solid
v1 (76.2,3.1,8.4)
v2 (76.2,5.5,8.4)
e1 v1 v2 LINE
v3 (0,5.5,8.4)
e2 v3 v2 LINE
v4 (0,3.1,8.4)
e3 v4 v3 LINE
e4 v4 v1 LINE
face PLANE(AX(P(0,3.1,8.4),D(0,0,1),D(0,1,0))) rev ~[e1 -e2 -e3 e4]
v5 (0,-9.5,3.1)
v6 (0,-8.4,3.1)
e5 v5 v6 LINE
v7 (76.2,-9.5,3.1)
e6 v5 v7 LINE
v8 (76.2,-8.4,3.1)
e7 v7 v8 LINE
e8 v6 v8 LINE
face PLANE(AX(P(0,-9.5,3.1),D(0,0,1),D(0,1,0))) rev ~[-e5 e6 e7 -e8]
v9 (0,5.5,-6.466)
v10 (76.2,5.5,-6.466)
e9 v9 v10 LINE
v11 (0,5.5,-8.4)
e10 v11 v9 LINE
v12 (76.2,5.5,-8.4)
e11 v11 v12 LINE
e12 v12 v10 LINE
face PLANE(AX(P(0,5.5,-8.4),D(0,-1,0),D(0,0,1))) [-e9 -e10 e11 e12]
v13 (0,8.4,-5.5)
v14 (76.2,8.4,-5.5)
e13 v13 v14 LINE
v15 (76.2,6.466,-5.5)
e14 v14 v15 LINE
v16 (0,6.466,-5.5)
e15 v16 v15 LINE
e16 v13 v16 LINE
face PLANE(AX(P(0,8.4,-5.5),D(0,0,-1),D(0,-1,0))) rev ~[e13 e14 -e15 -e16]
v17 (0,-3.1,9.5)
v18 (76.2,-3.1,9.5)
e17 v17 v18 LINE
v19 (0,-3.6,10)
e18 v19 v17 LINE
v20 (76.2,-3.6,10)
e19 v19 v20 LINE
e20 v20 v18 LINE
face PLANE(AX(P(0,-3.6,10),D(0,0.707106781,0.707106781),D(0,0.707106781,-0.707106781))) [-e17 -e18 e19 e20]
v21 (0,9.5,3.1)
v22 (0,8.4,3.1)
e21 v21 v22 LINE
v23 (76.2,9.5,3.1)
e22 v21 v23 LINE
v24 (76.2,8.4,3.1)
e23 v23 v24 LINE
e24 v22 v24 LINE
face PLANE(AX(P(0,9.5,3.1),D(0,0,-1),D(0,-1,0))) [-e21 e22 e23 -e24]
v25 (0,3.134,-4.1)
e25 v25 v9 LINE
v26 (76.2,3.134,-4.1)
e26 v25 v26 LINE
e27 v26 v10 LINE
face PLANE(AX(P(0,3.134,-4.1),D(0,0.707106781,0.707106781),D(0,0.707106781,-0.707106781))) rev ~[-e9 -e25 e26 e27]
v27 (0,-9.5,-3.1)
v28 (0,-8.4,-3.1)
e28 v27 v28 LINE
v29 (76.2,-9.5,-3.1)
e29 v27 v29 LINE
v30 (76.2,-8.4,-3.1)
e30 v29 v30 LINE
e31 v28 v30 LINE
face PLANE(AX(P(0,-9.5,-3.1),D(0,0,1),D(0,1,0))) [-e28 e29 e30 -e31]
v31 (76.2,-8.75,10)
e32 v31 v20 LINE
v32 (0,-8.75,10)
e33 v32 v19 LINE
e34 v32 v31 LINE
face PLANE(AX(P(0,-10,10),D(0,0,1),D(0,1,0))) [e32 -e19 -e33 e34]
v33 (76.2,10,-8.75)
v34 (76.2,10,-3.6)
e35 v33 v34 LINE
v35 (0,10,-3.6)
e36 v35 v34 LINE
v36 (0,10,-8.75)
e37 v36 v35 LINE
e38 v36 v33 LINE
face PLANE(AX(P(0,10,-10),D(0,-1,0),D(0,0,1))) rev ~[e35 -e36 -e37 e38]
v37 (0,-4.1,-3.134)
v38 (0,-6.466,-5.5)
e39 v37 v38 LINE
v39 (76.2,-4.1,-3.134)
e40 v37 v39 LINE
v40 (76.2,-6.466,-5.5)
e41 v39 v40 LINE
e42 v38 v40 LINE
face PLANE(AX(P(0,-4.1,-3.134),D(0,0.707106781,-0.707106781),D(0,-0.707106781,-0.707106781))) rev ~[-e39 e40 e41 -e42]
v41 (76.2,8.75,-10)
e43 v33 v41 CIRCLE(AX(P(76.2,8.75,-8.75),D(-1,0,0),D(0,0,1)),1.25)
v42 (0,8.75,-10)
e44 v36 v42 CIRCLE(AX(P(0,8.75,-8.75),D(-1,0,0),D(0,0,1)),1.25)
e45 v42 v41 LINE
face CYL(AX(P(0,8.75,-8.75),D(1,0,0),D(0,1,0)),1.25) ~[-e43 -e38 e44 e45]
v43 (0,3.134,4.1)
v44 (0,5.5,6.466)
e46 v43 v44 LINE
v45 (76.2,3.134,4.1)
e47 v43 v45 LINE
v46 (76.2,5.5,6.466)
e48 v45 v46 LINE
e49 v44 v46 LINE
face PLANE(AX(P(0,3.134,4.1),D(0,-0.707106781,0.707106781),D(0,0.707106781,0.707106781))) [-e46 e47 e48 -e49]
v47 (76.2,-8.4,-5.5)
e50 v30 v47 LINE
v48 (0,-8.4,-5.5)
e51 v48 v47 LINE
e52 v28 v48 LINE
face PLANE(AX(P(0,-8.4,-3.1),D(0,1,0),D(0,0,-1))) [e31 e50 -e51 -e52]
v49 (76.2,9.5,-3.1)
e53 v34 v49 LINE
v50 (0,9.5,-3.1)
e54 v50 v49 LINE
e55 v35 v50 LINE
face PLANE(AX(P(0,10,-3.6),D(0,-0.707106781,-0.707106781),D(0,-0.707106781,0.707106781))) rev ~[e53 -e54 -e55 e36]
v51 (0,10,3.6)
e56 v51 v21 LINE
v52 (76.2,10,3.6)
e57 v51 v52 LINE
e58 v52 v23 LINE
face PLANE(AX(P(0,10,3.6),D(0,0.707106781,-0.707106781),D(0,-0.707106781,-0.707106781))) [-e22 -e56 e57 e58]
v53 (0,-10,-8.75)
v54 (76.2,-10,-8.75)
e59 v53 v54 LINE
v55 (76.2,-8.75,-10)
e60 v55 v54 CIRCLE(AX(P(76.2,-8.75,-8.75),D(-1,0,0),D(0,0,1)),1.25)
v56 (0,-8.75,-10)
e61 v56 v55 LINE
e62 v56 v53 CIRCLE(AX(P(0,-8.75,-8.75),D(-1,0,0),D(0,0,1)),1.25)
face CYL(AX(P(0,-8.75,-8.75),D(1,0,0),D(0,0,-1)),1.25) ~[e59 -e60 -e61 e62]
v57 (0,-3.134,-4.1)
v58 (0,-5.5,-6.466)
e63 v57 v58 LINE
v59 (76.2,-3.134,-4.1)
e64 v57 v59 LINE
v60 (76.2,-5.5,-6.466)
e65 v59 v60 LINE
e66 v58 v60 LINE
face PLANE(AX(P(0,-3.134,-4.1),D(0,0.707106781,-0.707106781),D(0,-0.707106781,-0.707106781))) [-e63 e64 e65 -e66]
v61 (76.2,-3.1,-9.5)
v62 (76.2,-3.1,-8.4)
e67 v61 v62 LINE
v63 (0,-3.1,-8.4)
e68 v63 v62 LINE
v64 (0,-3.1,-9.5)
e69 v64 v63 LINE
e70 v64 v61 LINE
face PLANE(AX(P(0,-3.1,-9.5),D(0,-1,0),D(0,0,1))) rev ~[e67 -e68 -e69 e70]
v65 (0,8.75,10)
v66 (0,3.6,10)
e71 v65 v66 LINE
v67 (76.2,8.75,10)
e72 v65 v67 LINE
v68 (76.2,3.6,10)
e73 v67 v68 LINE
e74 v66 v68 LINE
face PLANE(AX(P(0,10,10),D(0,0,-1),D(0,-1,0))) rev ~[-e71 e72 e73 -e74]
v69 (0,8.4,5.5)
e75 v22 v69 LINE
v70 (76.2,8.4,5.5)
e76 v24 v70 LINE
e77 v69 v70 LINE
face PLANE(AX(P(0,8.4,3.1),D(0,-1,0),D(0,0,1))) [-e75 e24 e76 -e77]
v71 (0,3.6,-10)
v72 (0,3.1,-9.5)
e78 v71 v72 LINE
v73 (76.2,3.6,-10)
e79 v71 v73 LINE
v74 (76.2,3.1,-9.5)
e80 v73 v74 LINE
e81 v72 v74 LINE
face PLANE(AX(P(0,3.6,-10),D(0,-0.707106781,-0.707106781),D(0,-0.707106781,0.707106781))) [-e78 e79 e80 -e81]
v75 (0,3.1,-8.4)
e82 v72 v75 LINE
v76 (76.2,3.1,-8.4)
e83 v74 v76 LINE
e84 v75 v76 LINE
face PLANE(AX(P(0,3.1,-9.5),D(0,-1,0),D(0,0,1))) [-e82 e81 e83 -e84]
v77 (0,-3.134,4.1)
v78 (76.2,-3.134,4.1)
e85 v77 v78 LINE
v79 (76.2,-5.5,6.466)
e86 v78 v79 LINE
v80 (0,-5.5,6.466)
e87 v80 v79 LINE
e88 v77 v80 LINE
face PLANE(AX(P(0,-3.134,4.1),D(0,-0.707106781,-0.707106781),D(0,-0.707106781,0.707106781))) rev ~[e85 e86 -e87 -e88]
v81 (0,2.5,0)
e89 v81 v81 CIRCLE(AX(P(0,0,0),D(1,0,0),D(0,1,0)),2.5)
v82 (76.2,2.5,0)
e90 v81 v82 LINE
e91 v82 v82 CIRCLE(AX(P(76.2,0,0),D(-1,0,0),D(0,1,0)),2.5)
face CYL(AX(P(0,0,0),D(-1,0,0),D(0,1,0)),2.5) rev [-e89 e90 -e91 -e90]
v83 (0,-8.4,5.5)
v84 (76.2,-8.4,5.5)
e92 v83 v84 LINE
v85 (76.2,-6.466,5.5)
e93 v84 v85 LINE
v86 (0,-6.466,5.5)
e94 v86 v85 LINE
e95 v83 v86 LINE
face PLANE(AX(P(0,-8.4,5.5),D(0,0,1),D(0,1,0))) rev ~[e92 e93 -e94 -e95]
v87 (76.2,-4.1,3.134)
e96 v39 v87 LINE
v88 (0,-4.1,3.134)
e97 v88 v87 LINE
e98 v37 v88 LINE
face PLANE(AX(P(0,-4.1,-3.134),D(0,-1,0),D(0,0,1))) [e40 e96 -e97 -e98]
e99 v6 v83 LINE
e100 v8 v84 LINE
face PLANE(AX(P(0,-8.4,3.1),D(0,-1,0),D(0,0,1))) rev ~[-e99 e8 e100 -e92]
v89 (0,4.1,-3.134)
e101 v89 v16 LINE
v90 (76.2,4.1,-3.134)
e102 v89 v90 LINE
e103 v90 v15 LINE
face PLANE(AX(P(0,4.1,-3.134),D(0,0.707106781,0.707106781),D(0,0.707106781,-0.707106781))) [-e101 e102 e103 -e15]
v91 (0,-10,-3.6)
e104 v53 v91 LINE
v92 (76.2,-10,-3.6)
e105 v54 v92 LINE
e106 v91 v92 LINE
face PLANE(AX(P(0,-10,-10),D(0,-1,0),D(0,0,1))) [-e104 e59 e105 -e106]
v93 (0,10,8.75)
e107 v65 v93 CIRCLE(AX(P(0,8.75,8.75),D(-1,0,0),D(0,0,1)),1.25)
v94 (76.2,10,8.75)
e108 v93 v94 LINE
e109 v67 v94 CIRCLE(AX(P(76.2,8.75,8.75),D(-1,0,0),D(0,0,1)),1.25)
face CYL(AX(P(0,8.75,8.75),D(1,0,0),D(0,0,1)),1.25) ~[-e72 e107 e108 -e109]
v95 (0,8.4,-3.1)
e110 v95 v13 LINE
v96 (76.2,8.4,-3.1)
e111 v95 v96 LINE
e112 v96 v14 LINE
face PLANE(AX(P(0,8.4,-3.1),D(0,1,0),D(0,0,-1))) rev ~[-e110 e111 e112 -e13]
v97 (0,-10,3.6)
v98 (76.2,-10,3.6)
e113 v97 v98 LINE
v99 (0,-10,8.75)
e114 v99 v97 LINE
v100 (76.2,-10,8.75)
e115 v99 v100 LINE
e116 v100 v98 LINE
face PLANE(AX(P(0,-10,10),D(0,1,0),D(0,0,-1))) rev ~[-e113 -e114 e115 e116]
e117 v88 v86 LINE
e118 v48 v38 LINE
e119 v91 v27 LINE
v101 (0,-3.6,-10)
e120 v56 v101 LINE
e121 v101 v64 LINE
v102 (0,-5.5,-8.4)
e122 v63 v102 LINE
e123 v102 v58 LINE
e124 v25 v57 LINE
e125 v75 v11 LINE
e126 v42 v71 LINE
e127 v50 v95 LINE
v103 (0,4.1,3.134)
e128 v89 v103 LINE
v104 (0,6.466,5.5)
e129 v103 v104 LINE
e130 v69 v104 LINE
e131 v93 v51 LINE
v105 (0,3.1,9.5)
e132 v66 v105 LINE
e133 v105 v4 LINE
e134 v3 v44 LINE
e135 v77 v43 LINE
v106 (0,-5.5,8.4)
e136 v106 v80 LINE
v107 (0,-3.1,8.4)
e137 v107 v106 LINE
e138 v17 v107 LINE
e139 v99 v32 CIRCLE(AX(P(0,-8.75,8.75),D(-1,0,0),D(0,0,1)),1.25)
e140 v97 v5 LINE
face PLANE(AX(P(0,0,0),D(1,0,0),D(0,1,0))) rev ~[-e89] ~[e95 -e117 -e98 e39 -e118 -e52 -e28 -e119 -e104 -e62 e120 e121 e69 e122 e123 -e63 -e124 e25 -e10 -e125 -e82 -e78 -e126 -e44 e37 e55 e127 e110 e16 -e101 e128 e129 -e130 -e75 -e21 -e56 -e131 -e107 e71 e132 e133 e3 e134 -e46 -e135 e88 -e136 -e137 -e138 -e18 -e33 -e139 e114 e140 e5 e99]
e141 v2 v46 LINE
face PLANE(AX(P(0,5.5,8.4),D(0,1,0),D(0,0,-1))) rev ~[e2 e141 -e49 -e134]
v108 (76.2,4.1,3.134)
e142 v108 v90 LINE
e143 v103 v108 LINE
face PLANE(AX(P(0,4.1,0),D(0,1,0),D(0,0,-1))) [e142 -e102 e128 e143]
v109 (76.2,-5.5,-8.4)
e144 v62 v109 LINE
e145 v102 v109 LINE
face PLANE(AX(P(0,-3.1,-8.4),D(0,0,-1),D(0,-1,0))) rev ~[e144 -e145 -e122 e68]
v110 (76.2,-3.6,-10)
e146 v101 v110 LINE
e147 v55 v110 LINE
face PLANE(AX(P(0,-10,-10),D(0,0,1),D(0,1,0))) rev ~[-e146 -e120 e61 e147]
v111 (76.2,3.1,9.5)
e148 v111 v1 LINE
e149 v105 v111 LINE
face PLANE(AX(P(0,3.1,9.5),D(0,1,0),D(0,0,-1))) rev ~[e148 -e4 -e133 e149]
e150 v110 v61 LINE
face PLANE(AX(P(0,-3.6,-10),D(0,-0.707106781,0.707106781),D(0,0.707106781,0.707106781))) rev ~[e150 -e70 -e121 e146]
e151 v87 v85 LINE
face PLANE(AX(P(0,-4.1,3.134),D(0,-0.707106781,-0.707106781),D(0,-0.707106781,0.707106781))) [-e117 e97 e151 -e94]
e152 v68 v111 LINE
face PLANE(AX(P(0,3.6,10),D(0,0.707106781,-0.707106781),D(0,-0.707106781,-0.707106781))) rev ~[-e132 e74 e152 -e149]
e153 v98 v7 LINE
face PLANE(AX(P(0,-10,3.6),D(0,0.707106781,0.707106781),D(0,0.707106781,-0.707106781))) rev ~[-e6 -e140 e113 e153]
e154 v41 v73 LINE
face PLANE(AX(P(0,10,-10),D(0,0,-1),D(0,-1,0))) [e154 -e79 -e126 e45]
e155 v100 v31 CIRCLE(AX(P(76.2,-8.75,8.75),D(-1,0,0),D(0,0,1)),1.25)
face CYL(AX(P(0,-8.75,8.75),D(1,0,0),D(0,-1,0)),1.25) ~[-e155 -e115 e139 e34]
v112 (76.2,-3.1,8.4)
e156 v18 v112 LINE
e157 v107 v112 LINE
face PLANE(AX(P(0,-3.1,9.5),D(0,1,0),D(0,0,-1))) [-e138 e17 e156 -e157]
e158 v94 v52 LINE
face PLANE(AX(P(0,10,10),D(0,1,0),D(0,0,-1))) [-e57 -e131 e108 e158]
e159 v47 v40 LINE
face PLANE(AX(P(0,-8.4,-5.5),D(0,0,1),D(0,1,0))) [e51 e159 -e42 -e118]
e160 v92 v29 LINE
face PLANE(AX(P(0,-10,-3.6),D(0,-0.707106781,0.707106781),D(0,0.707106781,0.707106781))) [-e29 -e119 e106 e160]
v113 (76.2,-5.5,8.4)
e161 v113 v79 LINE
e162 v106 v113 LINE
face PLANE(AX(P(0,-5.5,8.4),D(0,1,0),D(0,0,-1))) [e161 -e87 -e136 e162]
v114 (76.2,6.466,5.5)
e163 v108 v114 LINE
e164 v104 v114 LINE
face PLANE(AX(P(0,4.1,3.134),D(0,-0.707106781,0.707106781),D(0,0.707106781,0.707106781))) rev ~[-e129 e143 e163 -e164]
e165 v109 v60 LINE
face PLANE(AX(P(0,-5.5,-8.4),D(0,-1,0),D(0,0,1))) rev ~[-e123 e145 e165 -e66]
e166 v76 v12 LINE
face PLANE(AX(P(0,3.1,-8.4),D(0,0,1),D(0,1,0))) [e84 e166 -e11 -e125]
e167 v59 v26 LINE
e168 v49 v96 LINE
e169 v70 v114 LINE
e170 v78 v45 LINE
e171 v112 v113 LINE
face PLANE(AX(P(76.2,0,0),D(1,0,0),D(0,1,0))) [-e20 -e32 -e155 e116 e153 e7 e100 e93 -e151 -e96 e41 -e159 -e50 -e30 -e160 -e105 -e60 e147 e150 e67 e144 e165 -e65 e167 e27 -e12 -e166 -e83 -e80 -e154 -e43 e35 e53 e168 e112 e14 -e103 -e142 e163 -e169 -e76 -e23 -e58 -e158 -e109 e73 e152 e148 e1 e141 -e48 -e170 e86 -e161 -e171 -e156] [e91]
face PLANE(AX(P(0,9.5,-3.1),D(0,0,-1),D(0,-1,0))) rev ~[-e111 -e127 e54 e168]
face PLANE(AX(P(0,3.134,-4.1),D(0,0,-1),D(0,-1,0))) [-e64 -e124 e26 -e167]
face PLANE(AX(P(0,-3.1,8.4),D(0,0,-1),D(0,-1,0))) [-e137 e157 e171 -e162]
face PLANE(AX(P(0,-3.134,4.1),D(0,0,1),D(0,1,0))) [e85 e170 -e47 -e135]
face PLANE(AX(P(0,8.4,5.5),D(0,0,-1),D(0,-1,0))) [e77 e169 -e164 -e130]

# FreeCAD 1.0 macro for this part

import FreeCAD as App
import Part
import Sketcher

V = App.Vector


def edges_at(feature, points):
    """Names of the edges that pass closest to the given points."""
    edges = feature.Shape.Edges
    near = lambda p: min(range(len(edges)), key=lambda i: edges[i].distToShape(Part.Vertex(*p))[0])
    return sorted({f"Edge{near(p) + 1}" for p in points})


def add_polygon(sketch, points):
    """Adds a closed chain of lines whose ends are joined by coincident constraints."""
    first, n = sketch.GeometryCount, len(points)
    for a, b in zip(points, points[1:] + points[:1]):
        sketch.addGeometry(Part.LineSegment(App.Vector(*a, 0), App.Vector(*b, 0)), False)
    for i in range(n):
        sketch.addConstraint(Sketcher.Constraint("Coincident", first + i, 2, first + (i + 1) % n, 1))

doc = App.newDocument("Part")
body = doc.addObject("PartDesign::Body", "Body")

sketch1 = doc.addObject("Sketcher::SketchObject", "Sketch")
body.addObject(sketch1)
sketch1.AttachmentSupport = (doc.YZ_Plane, [""])
sketch1.MapMode = "FlatFace"
add_polygon(sketch1, [(4.1, -3.1), (4.1, 3.1), (6.5, 5.5), (8.4, 5.5), (8.4, 3.1), (9.5, 3.1), (10, 3.6), (10, 10), (3.6, 10), (3.1, 9.5), (3.1, 8.4), (5.5, 8.4), (5.5, 6.5), (3.1, 4.1), (-3.1, 4.1), (-5.5, 6.5), (-5.5, 8.4), (-3.1, 8.4), (-3.1, 9.5), (-3.6, 10), (-10, 10), (-10, 3.6), (-9.5, 3.1), (-8.4, 3.1), (-8.4, 5.5), (-6.5, 5.5), (-4.1, 3.1), (-4.1, -3.1), (-6.5, -5.5), (-8.4, -5.5), (-8.4, -3.1), (-9.5, -3.1), (-10, -3.6), (-10, -10), (-3.6, -10), (-3.1, -9.5), (-3.1, -8.4), (-5.5, -8.4), (-5.5, -6.5), (-3.1, -4.1), (3.1, -4.1), (5.5, -6.5), (5.5, -8.4), (3.1, -8.4), (3.1, -9.5), (3.6, -10), (10, -10), (10, -3.6), (9.5, -3.1), (8.4, -3.1), (8.4, -5.5), (6.5, -5.5)])
sketch1.addGeometry(Part.Circle(V(0, 0, 0), V(0, 0, 1), 2.5), False)
sketch1.addConstraint(Sketcher.Constraint("Vertical", 0))
sketch1.addConstraint(Sketcher.Constraint("Horizontal", 2))
sketch1.addConstraint(Sketcher.Constraint("Vertical", 3))
sketch1.addConstraint(Sketcher.Constraint("Horizontal", 4))
sketch1.addConstraint(Sketcher.Constraint("Vertical", 6))
sketch1.addConstraint(Sketcher.Constraint("Horizontal", 7))
sketch1.addConstraint(Sketcher.Constraint("Vertical", 9))
sketch1.addConstraint(Sketcher.Constraint("Horizontal", 10))
sketch1.addConstraint(Sketcher.Constraint("Vertical", 11))
sketch1.addConstraint(Sketcher.Constraint("Horizontal", 13))
sketch1.addConstraint(Sketcher.Constraint("Vertical", 15))
sketch1.addConstraint(Sketcher.Constraint("Horizontal", 16))
sketch1.addConstraint(Sketcher.Constraint("Vertical", 17))
sketch1.addConstraint(Sketcher.Constraint("Horizontal", 19))
sketch1.addConstraint(Sketcher.Constraint("Vertical", 20))
sketch1.addConstraint(Sketcher.Constraint("Horizontal", 22))
sketch1.addConstraint(Sketcher.Constraint("Vertical", 23))
sketch1.addConstraint(Sketcher.Constraint("Horizontal", 24))
sketch1.addConstraint(Sketcher.Constraint("Vertical", 26))
sketch1.addConstraint(Sketcher.Constraint("Horizontal", 28))
sketch1.addConstraint(Sketcher.Constraint("Vertical", 29))
sketch1.addConstraint(Sketcher.Constraint("Horizontal", 30))
sketch1.addConstraint(Sketcher.Constraint("Vertical", 32))
sketch1.addConstraint(Sketcher.Constraint("Horizontal", 33))
sketch1.addConstraint(Sketcher.Constraint("Vertical", 35))
sketch1.addConstraint(Sketcher.Constraint("Horizontal", 36))
sketch1.addConstraint(Sketcher.Constraint("Vertical", 37))
sketch1.addConstraint(Sketcher.Constraint("Horizontal", 39))
sketch1.addConstraint(Sketcher.Constraint("Vertical", 41))
sketch1.addConstraint(Sketcher.Constraint("Horizontal", 42))
sketch1.addConstraint(Sketcher.Constraint("Vertical", 43))
sketch1.addConstraint(Sketcher.Constraint("Horizontal", 45))
sketch1.addConstraint(Sketcher.Constraint("Vertical", 46))
sketch1.addConstraint(Sketcher.Constraint("Horizontal", 48))
sketch1.addConstraint(Sketcher.Constraint("Vertical", 49))
sketch1.addConstraint(Sketcher.Constraint("Horizontal", 50))
sketch1.addConstraint(Sketcher.Constraint("Coincident", 52, 3, -1, 1))
sketch1.addConstraint(Sketcher.Constraint("Symmetric", 0, 2, 26, 2, -1, 1))
sketch1.addConstraint(Sketcher.Constraint("Symmetric", 1, 2, 27, 2, -1, 1))
sketch1.addConstraint(Sketcher.Constraint("Symmetric", 3, 2, 29, 2, -1, 1))
sketch1.addConstraint(Sketcher.Constraint("Symmetric", 5, 2, 31, 2, -1, 1))
sketch1.addConstraint(Sketcher.Constraint("Symmetric", 7, 2, 33, 2, -1, 1))
sketch1.addConstraint(Sketcher.Constraint("Symmetric", 8, 2, 34, 2, -1, 1))
sketch1.addConstraint(Sketcher.Constraint("Symmetric", 10, 2, 36, 2, -1, 1))
sketch1.addConstraint(Sketcher.Constraint("Symmetric", 12, 2, 38, 2, -1, 1))
sketch1.addConstraint(Sketcher.Constraint("Symmetric", 14, 2, 40, 2, -1, 1))
sketch1.addConstraint(Sketcher.Constraint("Symmetric", 16, 2, 42, 2, -1, 1))
sketch1.addConstraint(Sketcher.Constraint("Symmetric", 18, 2, 44, 2, -1, 1))
sketch1.addConstraint(Sketcher.Constraint("Symmetric", 20, 2, 46, 2, -1, 1))
sketch1.addConstraint(Sketcher.Constraint("Symmetric", 21, 2, 47, 2, -1, 1))
sketch1.addConstraint(Sketcher.Constraint("Symmetric", 23, 2, 49, 2, -1, 1))
sketch1.addConstraint(Sketcher.Constraint("Symmetric", 11, 2, 14, 2, -2))
sketch1.addConstraint(Sketcher.Constraint("Symmetric", 9, 2, 16, 2, -2))
sketch1.addConstraint(Sketcher.Constraint("Symmetric", 7, 2, 18, 2, -2))
sketch1.addConstraint(Sketcher.Constraint("Symmetric", 5, 2, 20, 2, -2))
sketch1.addConstraint(Sketcher.Constraint("Symmetric", 4, 2, 21, 2, -2))
sketch1.addConstraint(Sketcher.Constraint("Symmetric", 2, 2, 23, 2, -2))
sketch1.addConstraint(Sketcher.Constraint("Parallel", 1, 5))
sketch1.addConstraint(Sketcher.Constraint("Parallel", 5, 8))
sketch1.addConstraint(Sketcher.Constraint("Parallel", 8, 12))
sketch1.addConstraint(Sketcher.Constraint("Perpendicular", 12, 14))
sketch1.addConstraint(Sketcher.Constraint("Parallel", 14, 18))
sketch1.addConstraint(Sketcher.Constraint("Parallel", 18, 21))
sketch1.addConstraint(Sketcher.Constraint("Parallel", 21, 25))
sketch1.addConstraint(Sketcher.Constraint("Parallel", 27, 31))
sketch1.addConstraint(Sketcher.Constraint("Parallel", 34, 38))
sketch1.addConstraint(Sketcher.Constraint("Perpendicular", 38, 40))
sketch1.addConstraint(Sketcher.Constraint("Parallel", 40, 44))
sketch1.addConstraint(Sketcher.Constraint("Parallel", 47, 51))
sketch1.addConstraint(Sketcher.Constraint("Horizontal", 0, 2, 25, 2))
sketch1.addConstraint(Sketcher.Constraint("Horizontal", 26, 2, 51, 2))
sketch1.addConstraint(Sketcher.Constraint("Equal", 39, 0))
sketch1.addConstraint(Sketcher.Constraint("Equal", 42, 3))
sketch1.addConstraint(Sketcher.Constraint("Equal", 45, 6))
sketch1.addConstraint(Sketcher.Constraint("Equal", 48, 9))
sketch1.addConstraint(Sketcher.Constraint("Equal", 50, 11))
sketch1.addConstraint(Sketcher.Constraint("Equal", 5, 8))
sketch1.addConstraint(Sketcher.Constraint("Equal", 1, 12))
sketch1.addConstraint(Sketcher.Constraint("Diameter", 52, 5.0))
sketch1.addConstraint(Sketcher.Constraint("DistanceY", -1, 1, 1, 2, 5.5))
sketch1.addConstraint(Sketcher.Constraint("DistanceY", -1, 1, 3, 2, 3.1))
sketch1.addConstraint(Sketcher.Constraint("DistanceY", -1, 1, 5, 2, 3.6))
sketch1.addConstraint(Sketcher.Constraint("DistanceX", 0, 2, 2, 2, 4.3))
sketch1.addConstraint(Sketcher.Constraint("DistanceX", 3, 2, 5, 2, 1.6))
sketch1.addConstraint(Sketcher.Constraint("DistanceX", 7, 2, 7, 1, 6.4))
sketch1.addConstraint(Sketcher.Constraint("DistanceX", 2, 1, 2, 2, 1.934))
pad1 = doc.addObject("PartDesign::Pad", "Pad")
body.addObject(pad1)
pad1.Profile = sketch1
pad1.Length = 76.2
doc.recompute()

fillet = doc.addObject("PartDesign::Fillet", "Fillet")
body.addObject(fillet)
fillet.Base = (pad1, edges_at(pad1, [
    (38.1, 10, 10),
    (38.1, -10, 10),
    (38.1, 10, -10),
    (38.1, -10, -10),
]))
fillet.Radius = 1.25

doc.recompute()
